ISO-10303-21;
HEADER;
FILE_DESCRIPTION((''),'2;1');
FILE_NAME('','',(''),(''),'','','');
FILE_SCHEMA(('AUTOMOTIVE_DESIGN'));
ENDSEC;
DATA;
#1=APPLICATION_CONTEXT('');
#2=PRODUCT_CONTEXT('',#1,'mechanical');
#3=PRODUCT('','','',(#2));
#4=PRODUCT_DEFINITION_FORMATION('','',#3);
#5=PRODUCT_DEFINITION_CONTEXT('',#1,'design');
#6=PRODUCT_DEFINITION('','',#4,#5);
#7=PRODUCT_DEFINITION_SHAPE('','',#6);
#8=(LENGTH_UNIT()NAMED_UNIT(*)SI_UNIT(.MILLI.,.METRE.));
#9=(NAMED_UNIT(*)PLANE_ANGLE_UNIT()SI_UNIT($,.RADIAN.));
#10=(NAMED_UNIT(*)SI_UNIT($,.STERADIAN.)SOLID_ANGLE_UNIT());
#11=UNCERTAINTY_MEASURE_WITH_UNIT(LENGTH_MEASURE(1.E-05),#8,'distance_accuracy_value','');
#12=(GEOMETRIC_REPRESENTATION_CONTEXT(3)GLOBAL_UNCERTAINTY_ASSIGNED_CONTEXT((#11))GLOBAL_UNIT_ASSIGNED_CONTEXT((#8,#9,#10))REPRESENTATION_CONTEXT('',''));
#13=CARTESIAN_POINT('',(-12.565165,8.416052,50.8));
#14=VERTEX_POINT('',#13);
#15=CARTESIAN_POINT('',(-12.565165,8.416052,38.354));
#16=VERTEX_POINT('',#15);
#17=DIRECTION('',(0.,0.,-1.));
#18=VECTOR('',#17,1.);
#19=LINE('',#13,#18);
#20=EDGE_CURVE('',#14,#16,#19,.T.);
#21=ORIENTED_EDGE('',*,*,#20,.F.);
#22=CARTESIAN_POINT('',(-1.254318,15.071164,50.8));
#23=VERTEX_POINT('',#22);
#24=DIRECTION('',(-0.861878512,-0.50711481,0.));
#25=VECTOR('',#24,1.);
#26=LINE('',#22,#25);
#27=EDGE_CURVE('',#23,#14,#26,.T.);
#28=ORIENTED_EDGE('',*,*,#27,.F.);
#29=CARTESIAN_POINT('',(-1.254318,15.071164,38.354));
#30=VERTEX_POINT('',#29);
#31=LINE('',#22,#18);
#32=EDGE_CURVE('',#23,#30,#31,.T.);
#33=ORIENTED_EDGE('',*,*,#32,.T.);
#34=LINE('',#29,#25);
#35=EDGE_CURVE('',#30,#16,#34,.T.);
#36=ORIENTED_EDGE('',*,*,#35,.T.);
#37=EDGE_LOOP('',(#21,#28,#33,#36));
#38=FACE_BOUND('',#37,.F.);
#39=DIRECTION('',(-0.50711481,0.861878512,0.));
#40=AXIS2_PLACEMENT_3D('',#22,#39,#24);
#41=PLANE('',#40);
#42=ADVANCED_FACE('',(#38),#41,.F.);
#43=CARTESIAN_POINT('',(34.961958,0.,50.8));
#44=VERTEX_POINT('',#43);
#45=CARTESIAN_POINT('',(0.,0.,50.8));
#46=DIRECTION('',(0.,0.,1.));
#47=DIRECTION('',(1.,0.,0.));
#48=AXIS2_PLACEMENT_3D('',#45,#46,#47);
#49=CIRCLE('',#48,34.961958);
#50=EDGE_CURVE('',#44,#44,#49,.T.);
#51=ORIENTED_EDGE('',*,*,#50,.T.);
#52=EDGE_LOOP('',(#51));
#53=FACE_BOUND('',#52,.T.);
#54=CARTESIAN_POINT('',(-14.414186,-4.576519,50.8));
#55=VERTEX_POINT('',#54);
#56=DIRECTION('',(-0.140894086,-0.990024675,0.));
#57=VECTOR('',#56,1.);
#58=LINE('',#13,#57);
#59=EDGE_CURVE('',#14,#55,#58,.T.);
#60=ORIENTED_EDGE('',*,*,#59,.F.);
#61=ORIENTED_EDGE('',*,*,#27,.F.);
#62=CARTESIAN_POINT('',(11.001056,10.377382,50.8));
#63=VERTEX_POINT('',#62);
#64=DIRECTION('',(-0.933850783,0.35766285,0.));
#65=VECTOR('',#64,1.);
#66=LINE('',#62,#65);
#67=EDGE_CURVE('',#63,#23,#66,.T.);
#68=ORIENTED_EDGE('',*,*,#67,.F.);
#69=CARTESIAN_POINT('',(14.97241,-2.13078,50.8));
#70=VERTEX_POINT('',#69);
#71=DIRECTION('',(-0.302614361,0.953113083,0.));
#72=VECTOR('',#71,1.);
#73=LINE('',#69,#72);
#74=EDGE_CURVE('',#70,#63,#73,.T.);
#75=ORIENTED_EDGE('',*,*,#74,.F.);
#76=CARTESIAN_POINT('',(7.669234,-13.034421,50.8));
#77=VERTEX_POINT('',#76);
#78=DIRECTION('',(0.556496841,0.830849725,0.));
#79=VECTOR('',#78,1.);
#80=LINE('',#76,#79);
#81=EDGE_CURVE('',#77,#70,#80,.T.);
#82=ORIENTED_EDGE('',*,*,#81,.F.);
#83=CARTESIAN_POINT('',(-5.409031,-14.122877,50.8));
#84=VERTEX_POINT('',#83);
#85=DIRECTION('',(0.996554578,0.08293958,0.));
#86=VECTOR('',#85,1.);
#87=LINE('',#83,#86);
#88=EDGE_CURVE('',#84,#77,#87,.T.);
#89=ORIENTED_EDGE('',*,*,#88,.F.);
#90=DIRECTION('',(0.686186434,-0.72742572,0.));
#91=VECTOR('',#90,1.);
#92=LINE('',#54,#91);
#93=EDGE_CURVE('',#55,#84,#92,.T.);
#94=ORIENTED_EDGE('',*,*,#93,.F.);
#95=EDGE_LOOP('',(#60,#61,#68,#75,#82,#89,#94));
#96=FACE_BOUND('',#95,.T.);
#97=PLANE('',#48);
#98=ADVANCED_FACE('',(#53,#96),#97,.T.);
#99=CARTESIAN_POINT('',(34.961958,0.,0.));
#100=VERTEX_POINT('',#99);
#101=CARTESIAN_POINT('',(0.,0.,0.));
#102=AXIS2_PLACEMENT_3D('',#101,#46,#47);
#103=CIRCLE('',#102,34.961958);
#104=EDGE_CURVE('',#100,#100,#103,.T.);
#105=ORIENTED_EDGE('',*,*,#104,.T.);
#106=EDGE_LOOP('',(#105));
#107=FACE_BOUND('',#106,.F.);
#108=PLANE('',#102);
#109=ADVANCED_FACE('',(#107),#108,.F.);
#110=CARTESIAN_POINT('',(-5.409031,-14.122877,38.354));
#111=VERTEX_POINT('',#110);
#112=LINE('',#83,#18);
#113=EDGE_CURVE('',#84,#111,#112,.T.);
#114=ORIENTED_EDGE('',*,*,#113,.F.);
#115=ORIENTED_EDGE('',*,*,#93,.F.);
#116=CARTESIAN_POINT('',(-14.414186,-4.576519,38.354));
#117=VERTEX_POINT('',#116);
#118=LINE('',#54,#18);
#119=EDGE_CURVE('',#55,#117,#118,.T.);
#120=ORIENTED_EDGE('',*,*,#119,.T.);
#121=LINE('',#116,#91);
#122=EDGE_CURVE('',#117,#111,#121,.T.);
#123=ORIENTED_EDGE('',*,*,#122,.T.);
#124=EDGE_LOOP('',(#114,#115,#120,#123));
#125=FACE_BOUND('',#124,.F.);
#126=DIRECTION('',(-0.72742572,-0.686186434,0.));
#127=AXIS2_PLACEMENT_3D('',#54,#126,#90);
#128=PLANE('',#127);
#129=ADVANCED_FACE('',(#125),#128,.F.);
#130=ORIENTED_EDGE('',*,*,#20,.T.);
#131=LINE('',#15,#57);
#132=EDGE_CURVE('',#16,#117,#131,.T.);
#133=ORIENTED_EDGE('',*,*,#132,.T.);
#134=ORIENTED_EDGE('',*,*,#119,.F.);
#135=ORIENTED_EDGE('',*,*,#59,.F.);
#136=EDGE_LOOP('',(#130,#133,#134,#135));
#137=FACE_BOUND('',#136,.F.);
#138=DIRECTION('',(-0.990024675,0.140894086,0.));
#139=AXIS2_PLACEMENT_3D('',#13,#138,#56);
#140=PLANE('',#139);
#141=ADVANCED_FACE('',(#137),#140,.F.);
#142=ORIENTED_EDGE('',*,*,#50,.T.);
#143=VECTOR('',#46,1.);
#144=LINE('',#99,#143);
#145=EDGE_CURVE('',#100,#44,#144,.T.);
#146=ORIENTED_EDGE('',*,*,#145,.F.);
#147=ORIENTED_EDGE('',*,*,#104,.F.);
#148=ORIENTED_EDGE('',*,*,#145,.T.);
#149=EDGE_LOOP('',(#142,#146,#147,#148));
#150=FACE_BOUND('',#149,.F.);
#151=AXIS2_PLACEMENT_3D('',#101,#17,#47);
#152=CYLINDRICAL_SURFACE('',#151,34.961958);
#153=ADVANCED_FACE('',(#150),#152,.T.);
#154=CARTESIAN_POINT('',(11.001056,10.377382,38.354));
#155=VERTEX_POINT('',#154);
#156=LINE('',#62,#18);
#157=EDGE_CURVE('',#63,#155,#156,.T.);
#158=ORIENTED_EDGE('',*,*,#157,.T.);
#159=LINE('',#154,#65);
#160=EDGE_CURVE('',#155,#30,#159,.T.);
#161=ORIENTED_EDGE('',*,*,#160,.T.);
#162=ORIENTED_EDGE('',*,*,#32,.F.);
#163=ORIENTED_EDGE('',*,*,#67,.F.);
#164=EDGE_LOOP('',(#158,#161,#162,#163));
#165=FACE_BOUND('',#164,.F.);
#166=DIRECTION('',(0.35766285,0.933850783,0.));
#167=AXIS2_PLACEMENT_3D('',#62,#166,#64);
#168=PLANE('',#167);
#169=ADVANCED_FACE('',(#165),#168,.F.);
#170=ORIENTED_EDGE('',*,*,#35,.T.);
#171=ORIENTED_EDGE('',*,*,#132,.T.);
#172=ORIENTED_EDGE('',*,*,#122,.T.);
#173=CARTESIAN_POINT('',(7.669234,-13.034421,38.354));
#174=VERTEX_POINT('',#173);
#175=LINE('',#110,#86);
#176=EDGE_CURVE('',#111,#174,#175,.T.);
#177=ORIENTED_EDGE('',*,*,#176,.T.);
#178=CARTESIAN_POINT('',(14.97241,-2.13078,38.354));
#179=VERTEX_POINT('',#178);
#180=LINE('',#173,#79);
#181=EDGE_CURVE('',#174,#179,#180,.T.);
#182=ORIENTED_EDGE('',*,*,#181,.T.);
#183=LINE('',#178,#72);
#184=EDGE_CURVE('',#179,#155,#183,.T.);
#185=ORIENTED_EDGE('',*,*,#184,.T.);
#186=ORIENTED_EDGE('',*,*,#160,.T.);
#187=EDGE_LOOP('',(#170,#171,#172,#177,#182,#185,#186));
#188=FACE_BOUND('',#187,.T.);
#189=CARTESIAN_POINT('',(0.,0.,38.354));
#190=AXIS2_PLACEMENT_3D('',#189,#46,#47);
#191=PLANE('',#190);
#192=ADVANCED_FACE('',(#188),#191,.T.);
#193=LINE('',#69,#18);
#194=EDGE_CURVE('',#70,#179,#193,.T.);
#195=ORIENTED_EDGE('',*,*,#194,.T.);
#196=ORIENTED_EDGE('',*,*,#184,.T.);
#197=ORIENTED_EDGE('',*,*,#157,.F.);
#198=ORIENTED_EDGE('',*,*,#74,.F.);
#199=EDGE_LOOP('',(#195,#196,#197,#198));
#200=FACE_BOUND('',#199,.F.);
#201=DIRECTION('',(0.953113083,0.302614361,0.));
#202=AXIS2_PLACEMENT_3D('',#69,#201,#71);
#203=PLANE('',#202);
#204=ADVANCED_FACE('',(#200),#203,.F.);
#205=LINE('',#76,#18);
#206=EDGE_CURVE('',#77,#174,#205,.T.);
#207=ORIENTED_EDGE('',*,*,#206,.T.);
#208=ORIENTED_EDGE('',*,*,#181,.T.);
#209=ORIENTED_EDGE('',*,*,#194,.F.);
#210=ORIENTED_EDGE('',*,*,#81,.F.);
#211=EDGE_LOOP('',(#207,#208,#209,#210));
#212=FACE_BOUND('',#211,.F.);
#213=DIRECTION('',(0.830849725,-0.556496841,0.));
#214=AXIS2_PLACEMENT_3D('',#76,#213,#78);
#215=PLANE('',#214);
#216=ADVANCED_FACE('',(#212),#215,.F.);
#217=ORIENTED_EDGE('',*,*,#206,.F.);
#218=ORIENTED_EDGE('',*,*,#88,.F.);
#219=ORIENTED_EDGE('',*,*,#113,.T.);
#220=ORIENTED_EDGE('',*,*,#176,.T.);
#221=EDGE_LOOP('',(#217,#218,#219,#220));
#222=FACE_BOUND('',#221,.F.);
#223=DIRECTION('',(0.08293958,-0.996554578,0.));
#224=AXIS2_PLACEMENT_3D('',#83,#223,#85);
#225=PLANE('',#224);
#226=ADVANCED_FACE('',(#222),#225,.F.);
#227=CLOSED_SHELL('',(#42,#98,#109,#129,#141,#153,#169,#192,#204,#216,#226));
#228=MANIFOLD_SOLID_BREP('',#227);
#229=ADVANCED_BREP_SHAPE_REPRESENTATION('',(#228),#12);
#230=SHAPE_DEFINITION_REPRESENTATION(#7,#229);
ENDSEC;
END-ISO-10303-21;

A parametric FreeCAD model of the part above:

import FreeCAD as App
import Part
import Sketcher
from FreeCAD import Vector
Q = App.Units.Quantity

doc = App.newDocument("Part")
params = doc.addObject("Spreadsheet::Sheet", "Params")
for row, (alias, value) in enumerate([
    ("pad1_length", "2 in"),
    ("pocket1_length", "0.49 in"),
], start=1):
    params.set(f"A{row}", alias)
    params.set(f"B{row}", "=" + value)
    params.setAlias(f"B{row}", alias)

body = doc.addObject("PartDesign::Body", "Body")

# Sketch on XY plane
sketch1 = body.newObject("Sketcher::SketchObject", "Sketch")
sketch1.AttachmentSupport = (doc.getObject("XY_Plane"), [""])
sketch1.MapMode = "FlatFace"
sketch1.addGeometry(Part.Circle(Vector(0, 0, 0), Vector(0, 0, 1), 35), False)
sketch1.addConstraint([
    Sketcher.Constraint("Coincident", 0, 3, -1, 1),
    Sketcher.Constraint("Diameter", 0, Q("69.923916 mm")),
])
pad1 = body.newObject("PartDesign::Pad", "Pad")
pad1.Profile = sketch1
pad1.setExpression("Length", "Params.pad1_length")

# Sketch on XY plane
sketch2 = body.newObject("Sketcher::SketchObject", "Sketch001")
sketch2.AttachmentSupport = (doc.getObject("XY_Plane"), [""])
sketch2.MapMode = "FlatFace"
sketch2.AttachmentOffset = App.Placement(Vector(0, 0, 2 * 25.4), App.Rotation())
sketch2.addGeometry([
    Part.LineSegment(Vector(11.001056, 10.377382, 0), Vector(-1.254318, 15.071164, 0)),  # 0
    Part.LineSegment(Vector(-1.254318, 15.071164, 0), Vector(-12.565165, 8.416052, 0)),  # 1
    Part.LineSegment(Vector(-12.565165, 8.416052, 0), Vector(-14.414186, -4.576519, 0)),  # 2
    Part.LineSegment(Vector(-14.414186, -4.576519, 0), Vector(-5.409031, -14.122877, 0)),  # 3
    Part.LineSegment(Vector(-5.409031, -14.122877, 0), Vector(7.669234, -13.034421, 0)),  # 4
    Part.LineSegment(Vector(7.669234, -13.034421, 0), Vector(14.97241, -2.13078, 0)),  # 5
    Part.LineSegment(Vector(14.97241, -2.13078, 0), Vector(11.001056, 10.377382, 0)),  # 6
], False)
sketch2.addConstraint([
    Sketcher.Constraint("Coincident", 0, 2, 1, 1),
    Sketcher.Constraint("Coincident", 1, 2, 2, 1),
    Sketcher.Constraint("Coincident", 2, 2, 3, 1),
    Sketcher.Constraint("Coincident", 3, 2, 4, 1),
    Sketcher.Constraint("Coincident", 4, 2, 5, 1),
    Sketcher.Constraint("Coincident", 5, 2, 6, 1),
    Sketcher.Constraint("Coincident", 6, 2, 0, 1),
    Sketcher.Constraint("DistanceX", 1, 2, 4, 2, Q("20.234399 mm")),
    Sketcher.Constraint("Distance", 1, Q("13.123482 mm")),
    Sketcher.Constraint("Distance", 3, Q("13.123482 mm")),
    Sketcher.Constraint("Distance", 4, Q("13.123481 mm")),
    Sketcher.Constraint("Distance", 5, Q("13.123482 mm")),
    Sketcher.Constraint("Distance", 6, Q("13.123482 mm")),
    Sketcher.Constraint("DistanceY", 2, 2, -1, 1, Q("4.576519 mm")),
    Sketcher.Constraint("DistanceX", 3, 2, -1, 1, Q("5.409031 mm")),
    Sketcher.Constraint("DistanceY", 4, 2, -1, 1, Q("13.034421 mm")),
    Sketcher.Constraint("DistanceX", -1, 1, 5, 2, Q("14.97241 mm")),
    Sketcher.Constraint("DistanceY", 5, 2, -1, 1, Q("2.13078 mm")),
    Sketcher.Constraint("DistanceY", 1, 2, 0, 2, Q("6.655112 mm")),
    Sketcher.Constraint("DistanceY", 2, 2, 1, 2, Q("12.992571 mm")),
    Sketcher.Constraint("DistanceY", 6, 2, 0, 2, Q("4.693782 mm")),
])
pocket1 = body.newObject("PartDesign::Pocket", "Pocket")
pocket1.Profile = sketch2
pocket1.setExpression("Length", "Params.pocket1_length")

doc.recompute()
